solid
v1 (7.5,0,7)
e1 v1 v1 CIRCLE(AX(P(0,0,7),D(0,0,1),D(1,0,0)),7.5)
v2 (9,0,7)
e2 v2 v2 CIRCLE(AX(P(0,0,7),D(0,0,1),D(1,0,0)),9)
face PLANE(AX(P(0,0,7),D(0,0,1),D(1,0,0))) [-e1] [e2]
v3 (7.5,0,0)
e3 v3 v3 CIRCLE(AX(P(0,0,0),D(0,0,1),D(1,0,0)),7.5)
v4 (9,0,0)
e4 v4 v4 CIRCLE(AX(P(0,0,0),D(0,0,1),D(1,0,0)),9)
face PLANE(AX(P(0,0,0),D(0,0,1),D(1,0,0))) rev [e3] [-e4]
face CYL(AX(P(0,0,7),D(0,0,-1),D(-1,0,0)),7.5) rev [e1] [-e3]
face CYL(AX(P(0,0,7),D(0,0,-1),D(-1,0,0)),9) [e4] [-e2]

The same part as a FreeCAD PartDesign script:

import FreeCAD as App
import Part
import Sketcher
from FreeCAD import Vector

doc = App.newDocument("Part")
body = doc.addObject("PartDesign::Body", "Body")

# Sketch on XY plane
sketch1 = body.newObject("Sketcher::SketchObject", "Sketch")
sketch1.AttachmentSupport = (doc.getObject("XY_Plane"), [""])
sketch1.MapMode = "FlatFace"
sketch1.addGeometry([
    Part.Circle(Vector(0, 0, 0), Vector(0, 0, 1), 9),
    Part.Circle(Vector(0, 0, 0), Vector(0, 0, 1), 8),
], False)
sketch1.addConstraint([
    Sketcher.Constraint("Coincident", 0, 3, -1, 1),
    Sketcher.Constraint("Coincident", 1, 3, -1, 1),
    Sketcher.Constraint("Diameter", 0, 18.0),
    Sketcher.Constraint("Diameter", 1, 15.0),
])
pad1 = body.newObject("PartDesign::Pad", "Pad")
pad1.Profile = sketch1
pad1.Length = 7

doc.recompute()
